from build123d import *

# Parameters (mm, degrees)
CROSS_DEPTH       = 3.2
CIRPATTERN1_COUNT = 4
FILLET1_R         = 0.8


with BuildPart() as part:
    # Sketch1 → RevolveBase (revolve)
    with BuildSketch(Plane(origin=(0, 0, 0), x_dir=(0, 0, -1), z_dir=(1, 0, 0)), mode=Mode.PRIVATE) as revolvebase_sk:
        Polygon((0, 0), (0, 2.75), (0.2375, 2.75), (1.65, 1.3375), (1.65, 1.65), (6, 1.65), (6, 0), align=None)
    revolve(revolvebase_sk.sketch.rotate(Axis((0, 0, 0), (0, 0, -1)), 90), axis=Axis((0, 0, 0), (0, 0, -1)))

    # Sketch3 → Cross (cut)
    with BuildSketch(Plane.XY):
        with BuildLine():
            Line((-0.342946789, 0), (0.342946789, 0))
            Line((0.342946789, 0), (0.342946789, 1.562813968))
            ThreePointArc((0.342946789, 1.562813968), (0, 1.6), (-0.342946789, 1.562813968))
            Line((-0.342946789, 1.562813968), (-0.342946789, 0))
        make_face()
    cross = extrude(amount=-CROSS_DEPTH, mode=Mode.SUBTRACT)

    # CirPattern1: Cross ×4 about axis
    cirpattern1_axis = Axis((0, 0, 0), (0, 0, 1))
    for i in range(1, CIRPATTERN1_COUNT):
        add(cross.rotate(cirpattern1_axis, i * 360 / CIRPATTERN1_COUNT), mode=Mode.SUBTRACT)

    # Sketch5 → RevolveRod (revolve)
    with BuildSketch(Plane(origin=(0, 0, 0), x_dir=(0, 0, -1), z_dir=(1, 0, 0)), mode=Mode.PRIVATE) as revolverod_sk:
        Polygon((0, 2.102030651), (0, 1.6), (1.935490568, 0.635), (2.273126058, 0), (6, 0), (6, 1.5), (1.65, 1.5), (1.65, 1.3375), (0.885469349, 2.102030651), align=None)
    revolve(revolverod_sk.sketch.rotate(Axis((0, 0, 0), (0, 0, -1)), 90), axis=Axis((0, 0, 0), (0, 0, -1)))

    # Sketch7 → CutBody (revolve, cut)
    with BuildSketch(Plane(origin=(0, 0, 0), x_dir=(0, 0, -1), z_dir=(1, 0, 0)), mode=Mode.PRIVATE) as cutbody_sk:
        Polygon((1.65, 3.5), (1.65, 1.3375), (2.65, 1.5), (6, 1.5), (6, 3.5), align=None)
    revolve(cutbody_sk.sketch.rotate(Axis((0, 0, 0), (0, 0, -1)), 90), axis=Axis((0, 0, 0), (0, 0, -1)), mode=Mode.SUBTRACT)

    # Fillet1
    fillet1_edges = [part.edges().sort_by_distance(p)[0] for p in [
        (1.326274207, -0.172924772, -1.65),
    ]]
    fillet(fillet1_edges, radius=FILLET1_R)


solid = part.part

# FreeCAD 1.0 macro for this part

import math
import FreeCAD as App
import Part
import Sketcher

V = App.Vector
Q = App.Units.Quantity


def edges_at(feature, points):
    """Names of the edges that pass closest to the given points."""
    edges = feature.Shape.Edges
    near = lambda p: min(range(len(edges)), key=lambda i: edges[i].distToShape(Part.Vertex(*p))[0])
    return sorted({f"Edge{near(p) + 1}" for p in points})

doc = App.newDocument("Part")
params = doc.addObject("Spreadsheet::Sheet", "Params")
for row, (alias, value) in enumerate([
    ("sketch1_height", "6 mm"),
    ("sketch1_width", "2.75 mm"),
    ("sketch1_width2", "1.65 mm"),
    ("sketch1_height2", "4.35 mm"),
    ("revolution_angle", "360 deg"),
    ("sketch2_radius", "1.6 mm"),
    ("pocket1_length", "3.2 mm"),
    ("sketch3_width", "1.5 mm"),
    ("sketch3_height", "4.35 mm"),
    ("revolution2_angle", "360 deg"),
    ("sketch4_width", "2 mm"),
    ("sketch4_height", "3.35 mm"),
    ("groove_angle", "360 deg"),
    ("fillet_radius", "0.8 mm"),
], start=1):
    params.set(f"A{row}", alias)
    params.set(f"B{row}", "=" + value)
    params.setAlias(f"B{row}", alias)

body = doc.addObject("PartDesign::Body", "Body")

sketch1 = body.newObject("Sketcher::SketchObject", "Sketch")
sketch1.AttachmentSupport = (doc.getObject("YZ_Plane"), [""])
sketch1.MapMode = "FlatFace"
sketch1.addGeometry([
    Part.LineSegment(V(2.75, 0, 0), V(0, 0, 0)),
    Part.LineSegment(V(0, 0, 0), V(0, -6, 0)),
    Part.LineSegment(V(0, -6, 0), V(1.65, -6, 0)),
    Part.LineSegment(V(1.65, -6, 0), V(1.65, -1.65, 0)),
    Part.LineSegment(V(1.65, -1.65, 0), V(1.34, -1.65, 0)),
    Part.LineSegment(V(1.34, -1.65, 0), V(2.75, -0.24, 0)),
    Part.LineSegment(V(2.75, -0.24, 0), V(2.75, 0, 0)),
], False)
sketch1.addConstraint([
    Sketcher.Constraint("Coincident", 0, 2, 1, 1),
    Sketcher.Constraint("Coincident", 1, 2, 2, 1),
    Sketcher.Constraint("Coincident", 2, 2, 3, 1),
    Sketcher.Constraint("Coincident", 3, 2, 4, 1),
    Sketcher.Constraint("Coincident", 4, 2, 5, 1),
    Sketcher.Constraint("Coincident", 5, 2, 6, 1),
    Sketcher.Constraint("Coincident", 6, 2, 0, 1),
    Sketcher.Constraint("Horizontal", 0),
    Sketcher.Constraint("Vertical", 1),
    Sketcher.Constraint("Horizontal", 2),
    Sketcher.Constraint("Vertical", 3),
    Sketcher.Constraint("Horizontal", 4),
    Sketcher.Constraint("Vertical", 6),
    Sketcher.Constraint("Coincident", 0, 2, -1, 1),
    Sketcher.Constraint("DistanceY", 1, 2, 1, 1, Q("6 mm")),
    Sketcher.Constraint("Angle", 5, Q("45 deg")),
    Sketcher.Constraint("DistanceX", 0, 2, 0, 1, Q("2.75 mm")),
    Sketcher.Constraint("DistanceX", 2, 1, 2, 2, Q("1.65 mm")),
    Sketcher.Constraint("DistanceY", 3, 1, 3, 2, Q("4.35 mm")),
    Sketcher.Constraint("DistanceX", 4, 2, 4, 1, Q("0.3125 mm")),
])
sketch1.setExpression("Constraints[14]", "Params.sketch1_height")
sketch1.setExpression("Constraints[16]", "Params.sketch1_width")
sketch1.setExpression("Constraints[17]", "Params.sketch1_width2")
sketch1.setExpression("Constraints[18]", "Params.sketch1_height2")
revolution = body.newObject("PartDesign::Revolution", "Revolution")
revolution.Profile = sketch1
revolution.ReferenceAxis = (sketch1, ["V_Axis"])
revolution.setExpression("Angle", "Params.revolution_angle")

sketch2 = body.newObject("Sketcher::SketchObject", "Sketch001")
sketch2.AttachmentSupport = (doc.getObject("XY_Plane"), [""])
sketch2.MapMode = "FlatFace"
sketch2.addGeometry([
    Part.LineSegment(V(-0.3, 0, 0), V(0.3, 0, 0)),
    Part.LineSegment(V(0.3, 0, 0), V(0.3, 1.6, 0)),
    Part.ArcOfCircle(Part.Circle(V(0, 0, 0), V(0, 0, 1), 1.6), math.radians(78), math.radians(102)),
    Part.LineSegment(V(-0.3, 1.6, 0), V(-0.3, 0, 0)),
], False)
sketch2.addConstraint([
    Sketcher.Constraint("Coincident", 0, 2, 1, 1),
    Sketcher.Constraint("Coincident", 1, 2, 2, 1),
    Sketcher.Constraint("Coincident", 2, 2, 3, 1),
    Sketcher.Constraint("Coincident", 3, 2, 0, 1),
    Sketcher.Constraint("Horizontal", 0),
    Sketcher.Constraint("Vertical", 1),
    Sketcher.Constraint("Vertical", 3),
    Sketcher.Constraint("Coincident", 2, 3, -1, 1),
    Sketcher.Constraint("Symmetric", 0, 2, 3, 2, -1, 1),
    Sketcher.Constraint("Radius", 2, Q("1.6 mm")),
    Sketcher.Constraint("DistanceX", 0, 1, 0, 2, Q("0.685894 mm")),
])
sketch2.setExpression("Constraints[9]", "Params.sketch2_radius")
pocket1 = body.newObject("PartDesign::Pocket", "Pocket")
pocket1.Profile = sketch2
pocket1.setExpression("Length", "Params.pocket1_length")
doc.recompute()

polarpattern = body.newObject("PartDesign::PolarPattern", "PolarPattern")
polarpattern.Originals = [pocket1]
polarpattern.Axis = (doc.getObject("Z_Axis"), [""])
polarpattern.Angle = 360
polarpattern.Occurrences = 4
body.Tip = polarpattern

sketch3 = body.newObject("Sketcher::SketchObject", "Sketch002")
sketch3.AttachmentSupport = (doc.getObject("YZ_Plane"), [""])
sketch3.MapMode = "FlatFace"
sketch3.addGeometry([
    Part.LineSegment(V(2.1, 0, 0), V(1.6, 0, 0)),
    Part.LineSegment(V(1.6, 0, 0), V(0.64, -1.94, 0)),
    Part.LineSegment(V(0.64, -1.94, 0), V(0, -2.27, 0)),
    Part.LineSegment(V(0, -2.27, 0), V(0, -6, 0)),
    Part.LineSegment(V(0, -6, 0), V(1.5, -6, 0)),
    Part.LineSegment(V(1.5, -6, 0), V(1.5, -1.65, 0)),
    Part.LineSegment(V(1.5, -1.65, 0), V(1.34, -1.65, 0)),
    Part.LineSegment(V(1.34, -1.65, 0), V(2.1, -0.89, 0)),
    Part.LineSegment(V(2.1, -0.89, 0), V(2.1, 0, 0)),
], False)
sketch3.addConstraint([
    Sketcher.Constraint("Coincident", 0, 2, 1, 1),
    Sketcher.Constraint("Coincident", 1, 2, 2, 1),
    Sketcher.Constraint("Coincident", 2, 2, 3, 1),
    Sketcher.Constraint("Coincident", 3, 2, 4, 1),
    Sketcher.Constraint("Coincident", 4, 2, 5, 1),
    Sketcher.Constraint("Coincident", 5, 2, 6, 1),
    Sketcher.Constraint("Coincident", 6, 2, 7, 1),
    Sketcher.Constraint("Coincident", 7, 2, 8, 1),
    Sketcher.Constraint("Coincident", 8, 2, 0, 1),
    Sketcher.Constraint("Horizontal", 0),
    Sketcher.Constraint("Vertical", 3),
    Sketcher.Constraint("Horizontal", 4),
    Sketcher.Constraint("Vertical", 5),
    Sketcher.Constraint("Horizontal", 6),
    Sketcher.Constraint("Vertical", 8),
    Sketcher.Constraint("PointOnObject", 0, 2, -1),
    Sketcher.Constraint("PointOnObject", 2, 2, -2),
    Sketcher.Constraint("Angle", 2, Q("-152 deg")),
    Sketcher.Constraint("Angle", 7, Q("45 deg")),
    Sketcher.Constraint("DistanceX", 4, 1, 4, 2, Q("1.5 mm")),
    Sketcher.Constraint("DistanceY", 3, 2, -1, 1, Q("6 mm")),
    Sketcher.Constraint("Angle", 1, Q("-116.5 deg")),
    Sketcher.Constraint("DistanceY", 5, 1, 5, 2, Q("4.35 mm")),
    Sketcher.Constraint("DistanceX", -1, 1, 0, 2, Q("1.6 mm")),
    Sketcher.Constraint("DistanceX", 6, 2, 6, 1, Q("0.1625 mm")),
    Sketcher.Constraint("DistanceX", -1, 1, 1, 2, Q("0.635 mm")),
    Sketcher.Constraint("DistanceX", 0, 2, 0, 1, Q("0.502031 mm")),
])
sketch3.setExpression("Constraints[19]", "Params.sketch3_width")
sketch3.setExpression("Constraints[22]", "Params.sketch3_height")
revolution2 = body.newObject("PartDesign::Revolution", "Revolution001")
revolution2.Profile = sketch3
revolution2.ReferenceAxis = (sketch3, ["V_Axis"])
revolution2.setExpression("Angle", "Params.revolution2_angle")

sketch4 = body.newObject("Sketcher::SketchObject", "Sketch003")
sketch4.AttachmentSupport = (doc.getObject("YZ_Plane"), [""])
sketch4.MapMode = "FlatFace"
sketch4.addGeometry([
    Part.LineSegment(V(3.5, -1.6, 0), V(1.3, -1.6, 0)),
    Part.LineSegment(V(1.3, -1.6, 0), V(1.5, -2.6, 0)),
    Part.LineSegment(V(1.5, -2.6, 0), V(1.5, -6, 0)),
    Part.LineSegment(V(1.5, -6, 0), V(3.5, -6, 0)),
    Part.LineSegment(V(3.5, -6, 0), V(3.5, -1.6, 0)),
], False)
sketch4.addConstraint([
    Sketcher.Constraint("Coincident", 0, 2, 1, 1),
    Sketcher.Constraint("Coincident", 1, 2, 2, 1),
    Sketcher.Constraint("Coincident", 2, 2, 3, 1),
    Sketcher.Constraint("Coincident", 3, 2, 4, 1),
    Sketcher.Constraint("Coincident", 4, 2, 0, 1),
    Sketcher.Constraint("Horizontal", 0),
    Sketcher.Constraint("Vertical", 2),
    Sketcher.Constraint("Horizontal", 3),
    Sketcher.Constraint("Vertical", 4),
    Sketcher.Constraint("DistanceX", 3, 1, 3, 2, Q("2 mm")),
    Sketcher.Constraint("DistanceY", 2, 2, -1, 1, Q("6 mm")),
    Sketcher.Constraint("DistanceY", 1, 2, 0, 2, Q("1 mm")),
    Sketcher.Constraint("DistanceY", 2, 2, 2, 1, Q("3.35 mm")),
    Sketcher.Constraint("DistanceX", -1, 1, 1, 2, Q("1.5 mm")),
    Sketcher.Constraint("DistanceX", 0, 2, 0, 1, Q("2.1625 mm")),
])
sketch4.setExpression("Constraints[9]", "Params.sketch4_width")
sketch4.setExpression("Constraints[12]", "Params.sketch4_height")
groove = body.newObject("PartDesign::Groove", "Groove")
groove.Profile = sketch4
groove.ReferenceAxis = (sketch4, ["V_Axis"])
groove.setExpression("Angle", "Params.groove_angle")
doc.recompute()

fillet = body.newObject("PartDesign::Fillet", "Fillet")
fillet.Base = (groove, edges_at(groove, [(1.326, -0.173, -1.65)]))
fillet.setExpression("Radius", "Params.fillet_radius")

doc.recompute()
